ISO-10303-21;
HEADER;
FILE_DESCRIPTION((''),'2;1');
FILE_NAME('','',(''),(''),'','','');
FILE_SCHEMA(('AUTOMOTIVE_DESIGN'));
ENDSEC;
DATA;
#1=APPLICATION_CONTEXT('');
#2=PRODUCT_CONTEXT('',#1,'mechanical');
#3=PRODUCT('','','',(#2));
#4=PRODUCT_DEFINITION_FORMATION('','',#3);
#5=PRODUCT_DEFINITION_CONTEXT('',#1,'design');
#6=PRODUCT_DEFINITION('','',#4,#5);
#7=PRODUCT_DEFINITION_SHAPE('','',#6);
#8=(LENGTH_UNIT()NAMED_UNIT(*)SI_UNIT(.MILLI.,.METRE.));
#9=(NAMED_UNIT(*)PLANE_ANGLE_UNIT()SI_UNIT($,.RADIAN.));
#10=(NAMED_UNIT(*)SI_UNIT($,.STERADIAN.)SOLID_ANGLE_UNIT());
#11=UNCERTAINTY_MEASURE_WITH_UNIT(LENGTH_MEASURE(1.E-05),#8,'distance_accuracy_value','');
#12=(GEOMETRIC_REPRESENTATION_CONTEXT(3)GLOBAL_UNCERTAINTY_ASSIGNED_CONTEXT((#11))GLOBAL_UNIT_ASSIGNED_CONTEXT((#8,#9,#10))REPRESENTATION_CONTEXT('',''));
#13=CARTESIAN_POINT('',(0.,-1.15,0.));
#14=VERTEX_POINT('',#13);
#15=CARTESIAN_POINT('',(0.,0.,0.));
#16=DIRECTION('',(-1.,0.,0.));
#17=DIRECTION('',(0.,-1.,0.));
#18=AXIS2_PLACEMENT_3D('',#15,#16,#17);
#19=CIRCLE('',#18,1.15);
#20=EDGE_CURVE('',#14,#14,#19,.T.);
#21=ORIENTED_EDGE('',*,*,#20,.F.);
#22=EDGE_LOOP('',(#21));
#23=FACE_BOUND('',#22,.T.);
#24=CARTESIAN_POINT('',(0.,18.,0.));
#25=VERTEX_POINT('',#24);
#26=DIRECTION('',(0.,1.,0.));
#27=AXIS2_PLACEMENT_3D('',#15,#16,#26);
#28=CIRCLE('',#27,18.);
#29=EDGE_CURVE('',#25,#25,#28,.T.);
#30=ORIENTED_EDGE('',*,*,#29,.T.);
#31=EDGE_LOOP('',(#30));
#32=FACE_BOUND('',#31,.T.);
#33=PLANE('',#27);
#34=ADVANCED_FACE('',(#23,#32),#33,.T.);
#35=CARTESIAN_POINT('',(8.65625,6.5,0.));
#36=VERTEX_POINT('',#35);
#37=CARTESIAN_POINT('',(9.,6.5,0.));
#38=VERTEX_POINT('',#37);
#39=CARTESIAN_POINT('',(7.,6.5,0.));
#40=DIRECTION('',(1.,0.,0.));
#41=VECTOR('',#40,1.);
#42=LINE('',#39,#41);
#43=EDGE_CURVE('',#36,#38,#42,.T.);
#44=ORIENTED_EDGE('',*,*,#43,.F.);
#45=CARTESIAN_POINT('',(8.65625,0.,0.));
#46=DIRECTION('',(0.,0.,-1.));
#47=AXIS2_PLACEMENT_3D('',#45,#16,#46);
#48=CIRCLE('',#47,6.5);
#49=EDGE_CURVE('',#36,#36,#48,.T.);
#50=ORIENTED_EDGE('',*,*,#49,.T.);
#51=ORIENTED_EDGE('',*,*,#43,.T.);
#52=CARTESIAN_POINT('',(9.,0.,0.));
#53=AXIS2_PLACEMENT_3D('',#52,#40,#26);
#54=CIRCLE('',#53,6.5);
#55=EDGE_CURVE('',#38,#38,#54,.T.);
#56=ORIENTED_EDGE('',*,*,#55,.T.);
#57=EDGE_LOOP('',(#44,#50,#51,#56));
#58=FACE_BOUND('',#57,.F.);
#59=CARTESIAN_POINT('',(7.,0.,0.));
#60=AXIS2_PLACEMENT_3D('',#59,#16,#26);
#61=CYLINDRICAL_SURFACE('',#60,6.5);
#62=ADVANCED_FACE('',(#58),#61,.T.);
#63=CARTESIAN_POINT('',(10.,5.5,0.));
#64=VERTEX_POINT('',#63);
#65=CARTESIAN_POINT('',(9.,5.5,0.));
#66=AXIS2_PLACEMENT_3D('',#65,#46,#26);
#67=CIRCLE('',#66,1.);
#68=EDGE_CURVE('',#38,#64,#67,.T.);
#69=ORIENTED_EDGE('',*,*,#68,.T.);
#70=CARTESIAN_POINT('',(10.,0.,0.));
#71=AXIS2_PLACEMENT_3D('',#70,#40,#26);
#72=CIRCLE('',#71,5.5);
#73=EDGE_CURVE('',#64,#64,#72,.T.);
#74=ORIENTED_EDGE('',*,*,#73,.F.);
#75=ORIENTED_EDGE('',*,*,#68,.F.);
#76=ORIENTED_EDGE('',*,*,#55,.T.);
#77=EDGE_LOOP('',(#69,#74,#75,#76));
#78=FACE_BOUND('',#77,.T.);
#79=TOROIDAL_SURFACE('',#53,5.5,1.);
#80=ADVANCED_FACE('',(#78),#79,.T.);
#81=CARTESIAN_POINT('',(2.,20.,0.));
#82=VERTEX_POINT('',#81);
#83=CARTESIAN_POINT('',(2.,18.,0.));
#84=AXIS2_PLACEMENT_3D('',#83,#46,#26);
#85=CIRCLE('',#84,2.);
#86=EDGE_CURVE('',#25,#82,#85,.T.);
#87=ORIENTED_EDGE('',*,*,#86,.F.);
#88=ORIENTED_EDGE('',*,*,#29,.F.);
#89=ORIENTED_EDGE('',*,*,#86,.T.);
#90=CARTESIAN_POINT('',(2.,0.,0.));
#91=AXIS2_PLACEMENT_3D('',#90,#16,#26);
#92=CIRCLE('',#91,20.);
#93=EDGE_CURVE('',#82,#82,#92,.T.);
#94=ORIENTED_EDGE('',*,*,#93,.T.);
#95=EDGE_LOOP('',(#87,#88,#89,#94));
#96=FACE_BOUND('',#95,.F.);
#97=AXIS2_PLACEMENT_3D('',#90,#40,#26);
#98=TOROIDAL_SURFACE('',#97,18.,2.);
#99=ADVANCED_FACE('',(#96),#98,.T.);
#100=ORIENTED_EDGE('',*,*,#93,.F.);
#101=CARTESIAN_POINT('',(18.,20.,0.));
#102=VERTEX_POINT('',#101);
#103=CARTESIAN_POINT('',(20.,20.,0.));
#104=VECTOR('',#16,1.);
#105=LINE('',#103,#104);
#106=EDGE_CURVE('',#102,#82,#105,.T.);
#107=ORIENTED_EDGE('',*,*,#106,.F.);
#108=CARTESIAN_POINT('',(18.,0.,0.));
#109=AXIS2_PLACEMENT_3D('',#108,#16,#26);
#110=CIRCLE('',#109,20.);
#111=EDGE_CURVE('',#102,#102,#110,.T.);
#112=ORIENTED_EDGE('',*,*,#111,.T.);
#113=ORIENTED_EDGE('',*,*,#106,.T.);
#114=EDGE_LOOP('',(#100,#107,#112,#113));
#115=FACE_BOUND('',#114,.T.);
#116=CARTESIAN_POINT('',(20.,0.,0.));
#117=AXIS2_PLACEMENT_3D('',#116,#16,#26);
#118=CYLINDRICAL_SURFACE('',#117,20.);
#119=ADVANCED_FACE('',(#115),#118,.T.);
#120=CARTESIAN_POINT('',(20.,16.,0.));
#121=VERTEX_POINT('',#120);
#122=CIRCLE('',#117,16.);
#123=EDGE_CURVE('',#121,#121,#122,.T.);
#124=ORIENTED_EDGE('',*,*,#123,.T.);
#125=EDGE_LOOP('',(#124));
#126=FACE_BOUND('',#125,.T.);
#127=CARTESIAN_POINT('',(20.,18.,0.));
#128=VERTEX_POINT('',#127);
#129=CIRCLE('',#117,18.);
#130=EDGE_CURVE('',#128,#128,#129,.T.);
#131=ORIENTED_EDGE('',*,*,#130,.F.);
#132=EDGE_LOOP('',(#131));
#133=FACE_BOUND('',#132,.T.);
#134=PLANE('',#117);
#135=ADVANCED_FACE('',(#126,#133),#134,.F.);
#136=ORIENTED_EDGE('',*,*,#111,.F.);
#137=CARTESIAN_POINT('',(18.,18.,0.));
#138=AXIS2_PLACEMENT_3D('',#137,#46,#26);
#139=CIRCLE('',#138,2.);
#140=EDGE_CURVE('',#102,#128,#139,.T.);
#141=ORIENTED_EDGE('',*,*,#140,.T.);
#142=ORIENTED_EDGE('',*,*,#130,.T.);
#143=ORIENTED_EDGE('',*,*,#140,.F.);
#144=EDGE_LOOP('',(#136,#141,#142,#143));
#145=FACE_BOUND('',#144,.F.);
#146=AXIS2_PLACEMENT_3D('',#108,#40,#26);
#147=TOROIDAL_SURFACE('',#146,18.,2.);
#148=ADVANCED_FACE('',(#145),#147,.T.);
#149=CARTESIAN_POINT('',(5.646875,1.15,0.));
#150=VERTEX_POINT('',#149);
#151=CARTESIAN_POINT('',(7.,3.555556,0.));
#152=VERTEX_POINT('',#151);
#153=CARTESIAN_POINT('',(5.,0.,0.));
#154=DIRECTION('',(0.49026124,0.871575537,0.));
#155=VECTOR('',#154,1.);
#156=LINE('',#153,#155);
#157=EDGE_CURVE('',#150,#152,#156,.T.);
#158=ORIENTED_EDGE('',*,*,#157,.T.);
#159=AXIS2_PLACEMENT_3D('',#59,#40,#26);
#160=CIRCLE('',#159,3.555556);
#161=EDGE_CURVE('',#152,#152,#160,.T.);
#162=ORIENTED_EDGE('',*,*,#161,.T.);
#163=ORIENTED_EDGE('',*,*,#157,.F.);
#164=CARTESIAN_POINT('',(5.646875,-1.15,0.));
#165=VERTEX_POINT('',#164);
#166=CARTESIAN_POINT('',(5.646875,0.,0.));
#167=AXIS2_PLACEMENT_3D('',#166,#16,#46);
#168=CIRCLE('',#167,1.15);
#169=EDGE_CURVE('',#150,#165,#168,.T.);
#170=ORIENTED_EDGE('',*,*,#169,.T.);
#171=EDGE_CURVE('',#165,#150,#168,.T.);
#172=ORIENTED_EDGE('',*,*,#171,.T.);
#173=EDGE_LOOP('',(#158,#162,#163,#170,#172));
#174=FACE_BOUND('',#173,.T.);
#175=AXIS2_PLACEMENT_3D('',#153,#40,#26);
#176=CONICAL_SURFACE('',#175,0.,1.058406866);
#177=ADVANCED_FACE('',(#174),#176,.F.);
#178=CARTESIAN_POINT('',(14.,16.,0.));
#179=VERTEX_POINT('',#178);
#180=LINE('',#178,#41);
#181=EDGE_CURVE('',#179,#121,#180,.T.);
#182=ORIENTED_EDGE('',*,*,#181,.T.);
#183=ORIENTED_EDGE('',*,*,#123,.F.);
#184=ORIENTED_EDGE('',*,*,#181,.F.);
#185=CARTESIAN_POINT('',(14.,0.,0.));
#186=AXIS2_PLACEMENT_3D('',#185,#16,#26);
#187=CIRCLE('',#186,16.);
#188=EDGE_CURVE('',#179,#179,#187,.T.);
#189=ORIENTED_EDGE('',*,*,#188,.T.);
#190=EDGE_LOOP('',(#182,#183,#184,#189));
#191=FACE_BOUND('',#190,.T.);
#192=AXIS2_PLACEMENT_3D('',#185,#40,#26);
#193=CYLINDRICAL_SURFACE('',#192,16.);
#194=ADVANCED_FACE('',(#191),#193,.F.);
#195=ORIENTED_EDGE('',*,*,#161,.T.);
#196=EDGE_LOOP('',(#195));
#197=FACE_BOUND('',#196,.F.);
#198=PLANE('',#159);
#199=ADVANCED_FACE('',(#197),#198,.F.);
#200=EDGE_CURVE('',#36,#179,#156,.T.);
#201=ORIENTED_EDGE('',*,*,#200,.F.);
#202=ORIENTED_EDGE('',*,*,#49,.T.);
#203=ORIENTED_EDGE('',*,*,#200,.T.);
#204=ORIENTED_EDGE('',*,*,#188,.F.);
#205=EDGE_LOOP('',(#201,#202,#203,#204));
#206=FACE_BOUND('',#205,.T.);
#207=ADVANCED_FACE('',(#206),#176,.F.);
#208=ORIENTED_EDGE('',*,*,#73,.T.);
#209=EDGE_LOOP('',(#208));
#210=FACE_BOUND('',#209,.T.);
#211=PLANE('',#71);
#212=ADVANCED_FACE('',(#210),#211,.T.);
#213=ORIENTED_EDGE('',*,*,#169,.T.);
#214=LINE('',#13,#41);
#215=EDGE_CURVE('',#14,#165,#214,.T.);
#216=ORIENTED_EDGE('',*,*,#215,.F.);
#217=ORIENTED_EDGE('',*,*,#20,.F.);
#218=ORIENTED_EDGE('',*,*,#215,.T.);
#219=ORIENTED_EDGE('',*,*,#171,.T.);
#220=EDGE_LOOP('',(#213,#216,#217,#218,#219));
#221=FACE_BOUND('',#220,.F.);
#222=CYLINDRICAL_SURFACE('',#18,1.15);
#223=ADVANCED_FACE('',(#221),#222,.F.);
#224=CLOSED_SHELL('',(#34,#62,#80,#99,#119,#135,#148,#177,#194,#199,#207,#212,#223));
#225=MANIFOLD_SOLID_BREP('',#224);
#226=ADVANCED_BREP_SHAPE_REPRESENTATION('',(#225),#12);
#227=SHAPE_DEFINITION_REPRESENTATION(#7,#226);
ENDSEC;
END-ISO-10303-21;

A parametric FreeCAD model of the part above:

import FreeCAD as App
import Part
import Sketcher
Q = App.Units.Quantity


def edges_at(feature, points):
    """Names of the edges that pass closest to the given points."""
    edges = feature.Shape.Edges
    near = lambda p: min(range(len(edges)), key=lambda i: edges[i].distToShape(Part.Vertex(*p))[0])
    return sorted({f"Edge{near(p) + 1}" for p in points})


def add_polygon(sketch, points):
    """Adds a closed chain of lines whose ends are joined by coincident constraints."""
    first, n = sketch.GeometryCount, len(points)
    for a, b in zip(points, points[1:] + points[:1]):
        sketch.addGeometry(Part.LineSegment(App.Vector(*a, 0), App.Vector(*b, 0)), False)
    for i in range(n):
        sketch.addConstraint(Sketcher.Constraint("Coincident", first + i, 2, first + (i + 1) % n, 1))

doc = App.newDocument("Part")
params = doc.addObject("Spreadsheet::Sheet", "Params")
for row, (alias, value) in enumerate([
    ("sketch1_width", "5 mm"),
    ("sketch1_width2", "6 mm"),
    ("sketch1_width3", "20 mm"),
    ("sketch1_height", "4 mm"),
    ("revolution_angle", "360 deg"),
    ("sketch2_diameter", "2.3 mm"),
    ("pocket1_length", "25 mm"),
    ("fillet_radius", "2 mm"),
    ("sketch3_diameter", "13 mm"),
    ("pad1_length", "3 mm"),
    ("fillet2_radius", "1 mm"),
], start=1):
    params.set(f"A{row}", alias)
    params.set(f"B{row}", "=" + value)
    params.setAlias(f"B{row}", alias)

body = doc.addObject("PartDesign::Body", "Body")

# Sketch on XY plane
sketch1 = body.newObject("Sketcher::SketchObject", "Sketch")
sketch1.AttachmentSupport = (doc.getObject("XY_Plane"), [""])
sketch1.MapMode = "FlatFace"
add_polygon(sketch1, [(0, 20), (0, 0), (5, 0), (14, 16), (20, 16), (20, 20)])  # lines 0-5
sketch1.addConstraint(Sketcher.Constraint("Vertical", 0))
sketch1.addConstraint(Sketcher.Constraint("Horizontal", 1))
sketch1.addConstraint(Sketcher.Constraint("Horizontal", 3))
sketch1.addConstraint(Sketcher.Constraint("Vertical", 4))
sketch1.addConstraint(Sketcher.Constraint("Horizontal", 5))
sketch1.addConstraint(Sketcher.Constraint("Coincident", 0, 2, -1, 1))
sketch1.addConstraint(Sketcher.Constraint("Equal", 5, 0))
sketch1.addConstraint(Sketcher.Constraint("DistanceX", 1, 1, 1, 2, Q("5 mm")))
sketch1.addConstraint(Sketcher.Constraint("DistanceX", 3, 1, 3, 2, Q("6 mm")))
sketch1.addConstraint(Sketcher.Constraint("DistanceX", 5, 2, 5, 1, Q("20 mm")))
sketch1.addConstraint(Sketcher.Constraint("DistanceY", 4, 1, 4, 2, Q("4 mm")))
sketch1.setExpression("Constraints[13]", "Params.sketch1_width")
sketch1.setExpression("Constraints[14]", "Params.sketch1_width2")
sketch1.setExpression("Constraints[15]", "Params.sketch1_width3")
sketch1.setExpression("Constraints[16]", "Params.sketch1_height")
revolution = body.newObject("PartDesign::Revolution", "Revolution")
revolution.Profile = sketch1
revolution.ReferenceAxis = (sketch1, ["H_Axis"])
revolution.setExpression("Angle", "Params.revolution_angle")

# Sketch on YZ plane
sketch2 = body.newObject("Sketcher::SketchObject", "Sketch001")
sketch2.AttachmentSupport = (doc.getObject("YZ_Plane"), [""])
sketch2.MapMode = "FlatFace"
sketch2.addGeometry(Part.Circle(App.Vector(0, 0, 0), App.Vector(0, 0, 1), 1.1), False)
sketch2.addConstraint(Sketcher.Constraint("Coincident", 0, 3, -1, 1))
sketch2.addConstraint(Sketcher.Constraint("Diameter", 0, Q("2.3 mm")))
sketch2.setExpression("Constraints[1]", "Params.sketch2_diameter")
pocket1 = body.newObject("PartDesign::Pocket", "Pocket")
pocket1.Profile = sketch2
pocket1.setExpression("Length", "Params.pocket1_length")
pocket1.Reversed = True
doc.recompute()

fillet = body.newObject("PartDesign::Fillet", "Fillet")
fillet.Base = (pocket1, edges_at(pocket1, [(20, -20, 0), (0, -20, 0)]))
fillet.setExpression("Radius", "Params.fillet_radius")

# Sketch on YZ plane
sketch3 = body.newObject("Sketcher::SketchObject", "Sketch002")
sketch3.AttachmentSupport = (doc.getObject("YZ_Plane"), [""])
sketch3.MapMode = "FlatFace"
sketch3.AttachmentOffset = App.Placement(App.Vector(0, 0, 7), App.Rotation())
sketch3.addGeometry(Part.Circle(App.Vector(0, 0, 0), App.Vector(0, 0, 1), 6), False)
sketch3.addConstraint(Sketcher.Constraint("Coincident", 0, 3, -1, 1))
sketch3.addConstraint(Sketcher.Constraint("Diameter", 0, Q("13 mm")))
sketch3.setExpression("Constraints[1]", "Params.sketch3_diameter")
pad1 = body.newObject("PartDesign::Pad", "Pad")
pad1.Profile = sketch3
pad1.setExpression("Length", "Params.pad1_length")
doc.recompute()

fillet2 = body.newObject("PartDesign::Fillet", "Fillet001")
fillet2.Base = (pad1, edges_at(pad1, [(10, -6.5, 0)]))
fillet2.setExpression("Radius", "Params.fillet2_radius")

doc.recompute()
